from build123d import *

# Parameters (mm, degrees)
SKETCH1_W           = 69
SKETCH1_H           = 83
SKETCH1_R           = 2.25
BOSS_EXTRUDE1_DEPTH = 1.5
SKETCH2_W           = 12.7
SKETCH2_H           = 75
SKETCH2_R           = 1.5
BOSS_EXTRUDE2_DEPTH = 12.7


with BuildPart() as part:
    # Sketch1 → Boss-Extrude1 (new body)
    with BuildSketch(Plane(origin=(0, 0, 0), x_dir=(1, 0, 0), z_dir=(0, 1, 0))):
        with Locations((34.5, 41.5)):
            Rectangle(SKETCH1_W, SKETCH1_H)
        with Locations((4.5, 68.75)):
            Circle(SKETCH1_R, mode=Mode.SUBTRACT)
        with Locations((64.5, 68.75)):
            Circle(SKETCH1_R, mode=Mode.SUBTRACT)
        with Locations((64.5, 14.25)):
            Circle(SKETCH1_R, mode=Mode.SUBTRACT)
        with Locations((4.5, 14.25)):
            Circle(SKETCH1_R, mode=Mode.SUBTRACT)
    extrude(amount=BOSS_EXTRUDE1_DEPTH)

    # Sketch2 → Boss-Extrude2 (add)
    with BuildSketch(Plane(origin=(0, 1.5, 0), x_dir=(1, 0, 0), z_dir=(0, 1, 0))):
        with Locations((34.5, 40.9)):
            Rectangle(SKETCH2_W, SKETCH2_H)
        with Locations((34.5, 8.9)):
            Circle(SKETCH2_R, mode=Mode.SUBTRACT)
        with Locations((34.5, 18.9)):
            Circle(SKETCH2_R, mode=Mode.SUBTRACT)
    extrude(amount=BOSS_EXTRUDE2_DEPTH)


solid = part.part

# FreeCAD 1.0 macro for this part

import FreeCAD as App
import Part
import Sketcher
from FreeCAD import Vector

doc = App.newDocument("Part")
body = doc.addObject("PartDesign::Body", "Body")

# Sketch on XZ plane
sketch1 = body.newObject("Sketcher::SketchObject", "Sketch")
sketch1.AttachmentSupport = (doc.getObject("XZ_Plane"), [""])
sketch1.MapMode = "FlatFace"
sketch1.addGeometry([
    Part.LineSegment(Vector(0, -83, 0), Vector(0, 0, 0)),  # 0
    Part.LineSegment(Vector(0, 0, 0), Vector(69, 0, 0)),  # 1
    Part.LineSegment(Vector(69, 0, 0), Vector(69, -83, 0)),  # 2
    Part.LineSegment(Vector(69, -83, 0), Vector(0, -83, 0)),  # 3
    Part.Circle(Vector(4.5, -14.25, 0), Vector(0, 0, 1), 2.25),  # 4
    Part.Circle(Vector(64.5, -14.25, 0), Vector(0, 0, 1), 2.25),  # 5
    Part.Circle(Vector(4.5, -68.75, 0), Vector(0, 0, 1), 2.25),  # 6
    Part.Circle(Vector(64.5, -68.75, 0), Vector(0, 0, 1), 2.25),  # 7
], False)
sketch1.addConstraint([
    Sketcher.Constraint("Coincident", 0, 2, 1, 1),
    Sketcher.Constraint("Coincident", 1, 2, 2, 1),
    Sketcher.Constraint("Coincident", 2, 2, 3, 1),
    Sketcher.Constraint("Coincident", 3, 2, 0, 1),
    Sketcher.Constraint("Vertical", 0),
    Sketcher.Constraint("Horizontal", 1),
    Sketcher.Constraint("Vertical", 2),
    Sketcher.Constraint("Horizontal", 3),
    Sketcher.Constraint("Coincident", 0, 2, -1, 1),
    Sketcher.Constraint("Equal", 4, 5),
    Sketcher.Constraint("Equal", 5, 6),
    Sketcher.Constraint("Equal", 6, 7),
    Sketcher.Constraint("Horizontal", 4, 3, 5, 3),
    Sketcher.Constraint("Horizontal", 6, 3, 7, 3),
    Sketcher.Constraint("Vertical", 4, 3, 6, 3),
    Sketcher.Constraint("Vertical", 5, 3, 7, 3),
    Sketcher.Constraint("Diameter", 4, 4.5),
    Sketcher.Constraint("DistanceX", 1, 1, 1, 2, 69.0),
    Sketcher.Constraint("DistanceY", 0, 1, 0, 2, 83.0),
    Sketcher.Constraint("DistanceX", 4, 3, 5, 3, 60.0),
    Sketcher.Constraint("DistanceX", -1, 1, 4, 3, 4.5),
    Sketcher.Constraint("DistanceY", 6, 3, 4, 3, 54.5),
    Sketcher.Constraint("DistanceY", 4, 3, -1, 1, 14.25),
])
pad1 = body.newObject("PartDesign::Pad", "Pad")
pad1.Profile = sketch1
pad1.Length = 1.5
pad1.Reversed = True

# Sketch on XZ plane
sketch2 = body.newObject("Sketcher::SketchObject", "Sketch001")
sketch2.AttachmentSupport = (doc.getObject("XZ_Plane"), [""])
sketch2.MapMode = "FlatFace"
sketch2.AttachmentOffset = App.Placement(Vector(0, 0, -1.5), App.Rotation())
sketch2.addGeometry([
    Part.LineSegment(Vector(28.15, -78.4, 0), Vector(28.15, -3.4, 0)),  # 0
    Part.LineSegment(Vector(28.15, -3.4, 0), Vector(40.85, -3.4, 0)),  # 1
    Part.LineSegment(Vector(40.85, -3.4, 0), Vector(40.85, -78.4, 0)),  # 2
    Part.LineSegment(Vector(40.85, -78.4, 0), Vector(28.15, -78.4, 0)),  # 3
    Part.Circle(Vector(34.5, -8.9, 0), Vector(0, 0, 1), 1.5),  # 4
    Part.Circle(Vector(34.5, -18.9, 0), Vector(0, 0, 1), 1.5),  # 5
], False)
sketch2.addConstraint([
    Sketcher.Constraint("Coincident", 0, 2, 1, 1),
    Sketcher.Constraint("Coincident", 1, 2, 2, 1),
    Sketcher.Constraint("Coincident", 2, 2, 3, 1),
    Sketcher.Constraint("Coincident", 3, 2, 0, 1),
    Sketcher.Constraint("Vertical", 0),
    Sketcher.Constraint("Horizontal", 1),
    Sketcher.Constraint("Vertical", 2),
    Sketcher.Constraint("Horizontal", 3),
    Sketcher.Constraint("Equal", 4, 5),
    Sketcher.Constraint("Vertical", 4, 3, 5, 3),
    Sketcher.Constraint("Diameter", 4, 3.0),
    Sketcher.Constraint("DistanceY", 0, 1, 0, 2, 75.0),
    Sketcher.Constraint("DistanceX", 1, 1, 1, 2, 12.7),
    Sketcher.Constraint("DistanceY", 5, 3, 4, 3, 10.0),
    Sketcher.Constraint("DistanceX", -1, 1, 4, 3, 34.5),
    Sketcher.Constraint("DistanceY", 4, 3, -1, 1, 8.9),
    Sketcher.Constraint("DistanceY", 0, 2, -1, 1, 3.4),
    Sketcher.Constraint("DistanceX", -1, 1, 0, 2, 28.15),
])
pad2 = body.newObject("PartDesign::Pad", "Pad001")
pad2.Profile = sketch2
pad2.Length = 12.7
pad2.Reversed = True

doc.recompute()
